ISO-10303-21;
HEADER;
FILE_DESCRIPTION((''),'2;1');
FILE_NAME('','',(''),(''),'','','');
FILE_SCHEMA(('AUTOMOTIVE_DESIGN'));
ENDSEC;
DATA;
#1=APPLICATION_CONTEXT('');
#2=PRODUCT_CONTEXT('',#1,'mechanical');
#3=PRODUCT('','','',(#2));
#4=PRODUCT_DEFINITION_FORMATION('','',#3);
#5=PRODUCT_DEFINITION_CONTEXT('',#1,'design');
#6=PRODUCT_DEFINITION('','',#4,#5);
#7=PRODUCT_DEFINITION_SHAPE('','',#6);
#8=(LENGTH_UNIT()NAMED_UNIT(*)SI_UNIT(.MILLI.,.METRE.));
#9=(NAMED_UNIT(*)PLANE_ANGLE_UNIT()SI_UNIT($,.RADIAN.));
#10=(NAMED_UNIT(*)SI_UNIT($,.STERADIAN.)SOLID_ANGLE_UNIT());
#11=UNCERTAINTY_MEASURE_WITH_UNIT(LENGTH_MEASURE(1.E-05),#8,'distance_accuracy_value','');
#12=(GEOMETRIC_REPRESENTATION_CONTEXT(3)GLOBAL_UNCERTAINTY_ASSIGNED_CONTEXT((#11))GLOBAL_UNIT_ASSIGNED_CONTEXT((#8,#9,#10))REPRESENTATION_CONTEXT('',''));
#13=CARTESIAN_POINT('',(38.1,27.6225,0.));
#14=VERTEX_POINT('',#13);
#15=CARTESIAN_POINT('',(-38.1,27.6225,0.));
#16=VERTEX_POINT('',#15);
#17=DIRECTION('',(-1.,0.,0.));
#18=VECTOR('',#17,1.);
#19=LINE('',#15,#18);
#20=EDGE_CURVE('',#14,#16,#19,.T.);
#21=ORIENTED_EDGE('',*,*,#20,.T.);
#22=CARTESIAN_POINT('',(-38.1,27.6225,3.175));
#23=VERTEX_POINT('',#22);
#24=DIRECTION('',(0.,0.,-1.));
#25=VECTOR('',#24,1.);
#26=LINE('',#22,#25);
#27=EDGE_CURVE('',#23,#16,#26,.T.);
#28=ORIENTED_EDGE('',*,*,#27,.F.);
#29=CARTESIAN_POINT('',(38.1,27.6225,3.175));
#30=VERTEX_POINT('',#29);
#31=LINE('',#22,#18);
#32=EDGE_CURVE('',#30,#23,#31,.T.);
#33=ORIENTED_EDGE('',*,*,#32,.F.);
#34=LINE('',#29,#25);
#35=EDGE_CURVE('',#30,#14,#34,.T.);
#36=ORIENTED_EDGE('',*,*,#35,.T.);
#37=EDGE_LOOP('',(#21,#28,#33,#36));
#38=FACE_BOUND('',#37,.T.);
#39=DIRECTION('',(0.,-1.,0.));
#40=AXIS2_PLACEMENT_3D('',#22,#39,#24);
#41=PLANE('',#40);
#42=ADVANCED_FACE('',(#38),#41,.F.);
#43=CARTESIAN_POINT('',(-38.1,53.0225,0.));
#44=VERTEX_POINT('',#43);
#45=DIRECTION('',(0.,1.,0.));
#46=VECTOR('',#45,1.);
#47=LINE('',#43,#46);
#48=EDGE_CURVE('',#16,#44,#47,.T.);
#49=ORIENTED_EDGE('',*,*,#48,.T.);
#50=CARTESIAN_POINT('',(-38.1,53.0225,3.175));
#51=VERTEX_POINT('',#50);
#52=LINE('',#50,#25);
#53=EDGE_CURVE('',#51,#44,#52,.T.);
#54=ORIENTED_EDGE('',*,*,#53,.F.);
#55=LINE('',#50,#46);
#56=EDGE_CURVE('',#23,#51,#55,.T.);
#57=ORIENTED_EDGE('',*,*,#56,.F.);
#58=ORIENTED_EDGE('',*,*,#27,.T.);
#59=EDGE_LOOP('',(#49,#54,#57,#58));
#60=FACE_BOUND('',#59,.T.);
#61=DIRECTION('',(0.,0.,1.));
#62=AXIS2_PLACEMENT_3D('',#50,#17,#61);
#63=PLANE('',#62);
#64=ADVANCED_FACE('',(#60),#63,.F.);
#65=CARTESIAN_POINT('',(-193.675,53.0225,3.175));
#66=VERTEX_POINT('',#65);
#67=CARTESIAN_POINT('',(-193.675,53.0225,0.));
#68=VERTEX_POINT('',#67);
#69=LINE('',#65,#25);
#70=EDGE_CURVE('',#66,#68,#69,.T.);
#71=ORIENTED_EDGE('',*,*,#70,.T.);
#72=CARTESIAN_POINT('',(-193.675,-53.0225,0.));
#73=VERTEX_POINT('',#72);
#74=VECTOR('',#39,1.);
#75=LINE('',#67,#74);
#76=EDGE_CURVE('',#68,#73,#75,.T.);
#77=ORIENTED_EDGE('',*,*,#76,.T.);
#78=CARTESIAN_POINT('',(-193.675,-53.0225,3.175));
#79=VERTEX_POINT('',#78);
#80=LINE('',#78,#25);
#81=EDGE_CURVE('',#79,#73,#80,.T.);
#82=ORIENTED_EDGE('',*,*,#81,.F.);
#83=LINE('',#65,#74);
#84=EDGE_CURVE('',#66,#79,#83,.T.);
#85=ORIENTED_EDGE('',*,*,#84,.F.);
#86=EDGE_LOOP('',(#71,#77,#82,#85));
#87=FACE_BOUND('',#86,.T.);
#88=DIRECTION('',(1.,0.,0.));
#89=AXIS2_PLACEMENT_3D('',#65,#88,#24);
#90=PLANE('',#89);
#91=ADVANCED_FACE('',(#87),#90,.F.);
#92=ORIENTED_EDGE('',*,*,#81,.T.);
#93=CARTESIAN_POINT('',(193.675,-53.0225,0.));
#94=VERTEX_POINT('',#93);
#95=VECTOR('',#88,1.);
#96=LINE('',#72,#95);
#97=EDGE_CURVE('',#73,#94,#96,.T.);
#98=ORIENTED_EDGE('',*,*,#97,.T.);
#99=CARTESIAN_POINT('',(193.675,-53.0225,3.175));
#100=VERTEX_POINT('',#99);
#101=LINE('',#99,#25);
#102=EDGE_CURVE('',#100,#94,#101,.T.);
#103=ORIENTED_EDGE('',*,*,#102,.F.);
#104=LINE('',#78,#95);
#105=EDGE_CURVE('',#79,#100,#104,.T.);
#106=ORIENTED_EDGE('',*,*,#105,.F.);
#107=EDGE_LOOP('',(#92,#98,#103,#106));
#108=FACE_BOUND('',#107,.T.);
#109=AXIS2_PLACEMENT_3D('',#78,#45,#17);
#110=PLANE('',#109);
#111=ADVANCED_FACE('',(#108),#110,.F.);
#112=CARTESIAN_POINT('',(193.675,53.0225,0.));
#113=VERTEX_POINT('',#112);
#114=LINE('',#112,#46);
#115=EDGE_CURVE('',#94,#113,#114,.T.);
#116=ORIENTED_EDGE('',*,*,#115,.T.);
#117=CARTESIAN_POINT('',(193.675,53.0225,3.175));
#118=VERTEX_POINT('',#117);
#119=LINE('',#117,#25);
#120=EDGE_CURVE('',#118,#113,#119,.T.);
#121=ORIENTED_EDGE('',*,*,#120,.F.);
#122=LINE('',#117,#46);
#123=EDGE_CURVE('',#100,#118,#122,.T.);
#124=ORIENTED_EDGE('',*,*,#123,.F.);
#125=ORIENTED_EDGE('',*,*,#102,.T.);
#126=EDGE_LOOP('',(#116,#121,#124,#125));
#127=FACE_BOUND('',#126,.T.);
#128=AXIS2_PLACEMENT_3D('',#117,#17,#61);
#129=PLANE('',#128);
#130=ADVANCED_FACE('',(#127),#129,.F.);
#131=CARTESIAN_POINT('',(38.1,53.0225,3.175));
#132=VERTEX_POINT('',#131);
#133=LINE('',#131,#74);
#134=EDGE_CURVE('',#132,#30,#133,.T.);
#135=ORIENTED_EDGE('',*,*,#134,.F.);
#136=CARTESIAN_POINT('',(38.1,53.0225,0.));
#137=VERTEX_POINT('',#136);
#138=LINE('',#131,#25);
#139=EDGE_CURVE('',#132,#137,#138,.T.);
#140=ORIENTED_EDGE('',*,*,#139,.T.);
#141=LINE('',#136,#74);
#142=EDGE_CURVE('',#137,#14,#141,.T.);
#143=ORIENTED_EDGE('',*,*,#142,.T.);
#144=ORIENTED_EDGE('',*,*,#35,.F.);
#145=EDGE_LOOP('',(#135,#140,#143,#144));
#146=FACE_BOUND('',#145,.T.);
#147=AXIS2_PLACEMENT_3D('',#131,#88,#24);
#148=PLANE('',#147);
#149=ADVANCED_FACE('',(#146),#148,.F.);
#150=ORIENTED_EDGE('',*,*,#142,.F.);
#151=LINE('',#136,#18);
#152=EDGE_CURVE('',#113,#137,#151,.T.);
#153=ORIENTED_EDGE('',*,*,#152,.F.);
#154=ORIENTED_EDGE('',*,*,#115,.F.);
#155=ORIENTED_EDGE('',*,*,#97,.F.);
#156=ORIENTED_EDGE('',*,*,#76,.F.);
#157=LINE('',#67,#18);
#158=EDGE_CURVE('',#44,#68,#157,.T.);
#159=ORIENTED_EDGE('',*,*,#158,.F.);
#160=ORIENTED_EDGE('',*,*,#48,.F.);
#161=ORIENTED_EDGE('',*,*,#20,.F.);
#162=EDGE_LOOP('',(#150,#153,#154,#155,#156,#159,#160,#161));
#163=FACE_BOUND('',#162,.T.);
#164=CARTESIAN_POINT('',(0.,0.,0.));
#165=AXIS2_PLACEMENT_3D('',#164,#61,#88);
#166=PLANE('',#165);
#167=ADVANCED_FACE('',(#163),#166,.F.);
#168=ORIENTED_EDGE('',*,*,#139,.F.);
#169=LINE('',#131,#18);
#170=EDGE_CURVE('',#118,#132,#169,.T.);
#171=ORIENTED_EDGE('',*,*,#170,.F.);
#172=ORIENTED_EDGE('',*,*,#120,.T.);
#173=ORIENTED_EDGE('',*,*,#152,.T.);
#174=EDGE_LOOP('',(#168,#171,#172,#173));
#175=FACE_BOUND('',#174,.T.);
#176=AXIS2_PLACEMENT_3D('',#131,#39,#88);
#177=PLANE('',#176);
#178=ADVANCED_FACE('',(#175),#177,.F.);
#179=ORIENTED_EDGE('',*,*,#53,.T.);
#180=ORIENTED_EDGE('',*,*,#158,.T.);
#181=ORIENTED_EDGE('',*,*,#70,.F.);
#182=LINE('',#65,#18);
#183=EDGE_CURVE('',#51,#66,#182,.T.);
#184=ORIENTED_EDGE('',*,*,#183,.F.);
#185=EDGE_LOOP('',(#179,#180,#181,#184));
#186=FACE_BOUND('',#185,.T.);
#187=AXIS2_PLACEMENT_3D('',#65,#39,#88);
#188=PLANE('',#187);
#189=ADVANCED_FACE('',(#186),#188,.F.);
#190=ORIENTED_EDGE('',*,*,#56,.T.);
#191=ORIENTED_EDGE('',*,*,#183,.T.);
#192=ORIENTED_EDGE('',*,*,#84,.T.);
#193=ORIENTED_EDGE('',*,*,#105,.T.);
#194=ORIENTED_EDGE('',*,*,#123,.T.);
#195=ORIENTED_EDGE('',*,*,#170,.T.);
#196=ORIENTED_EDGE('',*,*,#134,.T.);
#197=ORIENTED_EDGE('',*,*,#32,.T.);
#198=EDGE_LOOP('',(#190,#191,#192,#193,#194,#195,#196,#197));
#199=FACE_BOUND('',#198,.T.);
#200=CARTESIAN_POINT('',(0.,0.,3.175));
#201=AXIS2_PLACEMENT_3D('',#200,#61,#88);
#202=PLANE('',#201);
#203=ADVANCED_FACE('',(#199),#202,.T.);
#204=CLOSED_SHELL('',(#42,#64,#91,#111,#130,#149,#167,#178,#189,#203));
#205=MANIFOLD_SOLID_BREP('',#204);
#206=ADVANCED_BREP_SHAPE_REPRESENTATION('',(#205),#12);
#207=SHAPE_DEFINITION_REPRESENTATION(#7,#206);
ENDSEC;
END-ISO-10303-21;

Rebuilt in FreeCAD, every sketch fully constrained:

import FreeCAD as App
import Part
import Sketcher

V = App.Vector
Q = App.Units.Quantity

doc = App.newDocument("Part")
body = doc.addObject("PartDesign::Body", "Body")

sketch1 = doc.addObject("Sketcher::SketchObject", "Sketch")
body.addObject(sketch1)
sketch1.AttachmentSupport = (doc.XY_Plane, [""])
sketch1.MapMode = "FlatFace"
sketch1.addGeometry([
    Part.LineSegment(V(193.675, 53.0225, 0), V(38.1, 53.0225, 0)),
    Part.LineSegment(V(38.1, 53.0225, 0), V(38.1, 27.6225, 0)),
    Part.LineSegment(V(38.1, 27.6225, 0), V(-38.1, 27.6225, 0)),
    Part.LineSegment(V(-38.1, 27.6225, 0), V(-38.1, 53.0225, 0)),
    Part.LineSegment(V(-38.1, 53.0225, 0), V(-193.675, 53.0225, 0)),
    Part.LineSegment(V(-193.675, 53.0225, 0), V(-193.675, -53.0225, 0)),
    Part.LineSegment(V(-193.675, -53.0225, 0), V(193.675, -53.0225, 0)),
    Part.LineSegment(V(193.675, -53.0225, 0), V(193.675, 53.0225, 0)),
], False)
sketch1.addConstraint([
    Sketcher.Constraint("Coincident", 0, 2, 1, 1),
    Sketcher.Constraint("Coincident", 1, 2, 2, 1),
    Sketcher.Constraint("Coincident", 2, 2, 3, 1),
    Sketcher.Constraint("Coincident", 3, 2, 4, 1),
    Sketcher.Constraint("Coincident", 4, 2, 5, 1),
    Sketcher.Constraint("Coincident", 5, 2, 6, 1),
    Sketcher.Constraint("Coincident", 6, 2, 7, 1),
    Sketcher.Constraint("Coincident", 7, 2, 0, 1),
    Sketcher.Constraint("Horizontal", 0),
    Sketcher.Constraint("Vertical", 1),
    Sketcher.Constraint("Horizontal", 2),
    Sketcher.Constraint("Vertical", 3),
    Sketcher.Constraint("Horizontal", 4),
    Sketcher.Constraint("Vertical", 5),
    Sketcher.Constraint("Horizontal", 6),
    Sketcher.Constraint("Vertical", 7),
    Sketcher.Constraint("Symmetric", 4, 2, 6, 2, -1, 1),
    Sketcher.Constraint("Symmetric", 0, 2, 3, 2, -2),
    Sketcher.Constraint("DistanceX", 2, 2, 2, 1, Q("3 in")),
    Sketcher.Constraint("DistanceY", 1, 2, 1, 1, Q("1 in")),
    Sketcher.Constraint("DistanceX", 6, 1, 6, 2, Q("15.25 in")),
    Sketcher.Constraint("DistanceY", 5, 2, 5, 1, Q("4.175 in")),
])
pad1 = doc.addObject("PartDesign::Pad", "Pad")
body.addObject(pad1)
pad1.Profile = sketch1
pad1.Length = Q("0.125 in")

doc.recompute()
